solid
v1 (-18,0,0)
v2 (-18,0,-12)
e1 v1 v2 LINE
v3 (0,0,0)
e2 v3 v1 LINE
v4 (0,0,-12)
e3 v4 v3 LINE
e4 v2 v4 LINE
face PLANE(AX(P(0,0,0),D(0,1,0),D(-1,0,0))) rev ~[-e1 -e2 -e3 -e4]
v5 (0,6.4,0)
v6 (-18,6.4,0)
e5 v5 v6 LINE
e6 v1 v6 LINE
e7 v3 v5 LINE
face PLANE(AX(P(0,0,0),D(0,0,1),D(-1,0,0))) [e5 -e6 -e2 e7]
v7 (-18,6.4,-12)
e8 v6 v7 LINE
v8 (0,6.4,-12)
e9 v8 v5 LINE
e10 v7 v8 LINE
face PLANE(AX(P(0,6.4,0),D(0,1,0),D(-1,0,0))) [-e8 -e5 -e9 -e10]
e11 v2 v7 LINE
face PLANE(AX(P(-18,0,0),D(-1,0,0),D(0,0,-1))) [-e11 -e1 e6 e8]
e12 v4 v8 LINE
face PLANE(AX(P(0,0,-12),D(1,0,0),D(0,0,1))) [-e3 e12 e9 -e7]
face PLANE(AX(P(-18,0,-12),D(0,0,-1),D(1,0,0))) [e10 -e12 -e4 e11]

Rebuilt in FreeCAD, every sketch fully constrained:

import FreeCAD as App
import Part
import Sketcher
Q = App.Units.Quantity


def add_polygon(sketch, points):
    """Adds a closed chain of lines whose ends are joined by coincident constraints."""
    first, n = sketch.GeometryCount, len(points)
    for a, b in zip(points, points[1:] + points[:1]):
        sketch.addGeometry(Part.LineSegment(App.Vector(*a, 0), App.Vector(*b, 0)), False)
    for i in range(n):
        sketch.addConstraint(Sketcher.Constraint("Coincident", first + i, 2, first + (i + 1) % n, 1))

doc = App.newDocument("Part")
body = doc.addObject("PartDesign::Body", "Body")

sketch1 = body.newObject("Sketcher::SketchObject", "Sketch")
sketch1.AttachmentSupport = (doc.getObject("XZ_Plane"), [""])
sketch1.MapMode = "FlatFace"
add_polygon(sketch1, [(-18, 0), (0, 0), (0, -12), (-18, -12)])
sketch1.addConstraint([
    Sketcher.Constraint("Horizontal", 0),
    Sketcher.Constraint("Vertical", 1),
    Sketcher.Constraint("Horizontal", 2),
    Sketcher.Constraint("Vertical", 3),
    Sketcher.Constraint("Coincident", 0, 2, -1, 1),
    Sketcher.Constraint("DistanceX", 0, 1, 0, 2, Q("18 mm")),
    Sketcher.Constraint("DistanceY", 1, 2, 1, 1, Q("12 mm")),
])
pad1 = body.newObject("PartDesign::Pad", "Pad")
pad1.Profile = sketch1
pad1.Length = 6.4
pad1.Reversed = True

doc.recompute()
